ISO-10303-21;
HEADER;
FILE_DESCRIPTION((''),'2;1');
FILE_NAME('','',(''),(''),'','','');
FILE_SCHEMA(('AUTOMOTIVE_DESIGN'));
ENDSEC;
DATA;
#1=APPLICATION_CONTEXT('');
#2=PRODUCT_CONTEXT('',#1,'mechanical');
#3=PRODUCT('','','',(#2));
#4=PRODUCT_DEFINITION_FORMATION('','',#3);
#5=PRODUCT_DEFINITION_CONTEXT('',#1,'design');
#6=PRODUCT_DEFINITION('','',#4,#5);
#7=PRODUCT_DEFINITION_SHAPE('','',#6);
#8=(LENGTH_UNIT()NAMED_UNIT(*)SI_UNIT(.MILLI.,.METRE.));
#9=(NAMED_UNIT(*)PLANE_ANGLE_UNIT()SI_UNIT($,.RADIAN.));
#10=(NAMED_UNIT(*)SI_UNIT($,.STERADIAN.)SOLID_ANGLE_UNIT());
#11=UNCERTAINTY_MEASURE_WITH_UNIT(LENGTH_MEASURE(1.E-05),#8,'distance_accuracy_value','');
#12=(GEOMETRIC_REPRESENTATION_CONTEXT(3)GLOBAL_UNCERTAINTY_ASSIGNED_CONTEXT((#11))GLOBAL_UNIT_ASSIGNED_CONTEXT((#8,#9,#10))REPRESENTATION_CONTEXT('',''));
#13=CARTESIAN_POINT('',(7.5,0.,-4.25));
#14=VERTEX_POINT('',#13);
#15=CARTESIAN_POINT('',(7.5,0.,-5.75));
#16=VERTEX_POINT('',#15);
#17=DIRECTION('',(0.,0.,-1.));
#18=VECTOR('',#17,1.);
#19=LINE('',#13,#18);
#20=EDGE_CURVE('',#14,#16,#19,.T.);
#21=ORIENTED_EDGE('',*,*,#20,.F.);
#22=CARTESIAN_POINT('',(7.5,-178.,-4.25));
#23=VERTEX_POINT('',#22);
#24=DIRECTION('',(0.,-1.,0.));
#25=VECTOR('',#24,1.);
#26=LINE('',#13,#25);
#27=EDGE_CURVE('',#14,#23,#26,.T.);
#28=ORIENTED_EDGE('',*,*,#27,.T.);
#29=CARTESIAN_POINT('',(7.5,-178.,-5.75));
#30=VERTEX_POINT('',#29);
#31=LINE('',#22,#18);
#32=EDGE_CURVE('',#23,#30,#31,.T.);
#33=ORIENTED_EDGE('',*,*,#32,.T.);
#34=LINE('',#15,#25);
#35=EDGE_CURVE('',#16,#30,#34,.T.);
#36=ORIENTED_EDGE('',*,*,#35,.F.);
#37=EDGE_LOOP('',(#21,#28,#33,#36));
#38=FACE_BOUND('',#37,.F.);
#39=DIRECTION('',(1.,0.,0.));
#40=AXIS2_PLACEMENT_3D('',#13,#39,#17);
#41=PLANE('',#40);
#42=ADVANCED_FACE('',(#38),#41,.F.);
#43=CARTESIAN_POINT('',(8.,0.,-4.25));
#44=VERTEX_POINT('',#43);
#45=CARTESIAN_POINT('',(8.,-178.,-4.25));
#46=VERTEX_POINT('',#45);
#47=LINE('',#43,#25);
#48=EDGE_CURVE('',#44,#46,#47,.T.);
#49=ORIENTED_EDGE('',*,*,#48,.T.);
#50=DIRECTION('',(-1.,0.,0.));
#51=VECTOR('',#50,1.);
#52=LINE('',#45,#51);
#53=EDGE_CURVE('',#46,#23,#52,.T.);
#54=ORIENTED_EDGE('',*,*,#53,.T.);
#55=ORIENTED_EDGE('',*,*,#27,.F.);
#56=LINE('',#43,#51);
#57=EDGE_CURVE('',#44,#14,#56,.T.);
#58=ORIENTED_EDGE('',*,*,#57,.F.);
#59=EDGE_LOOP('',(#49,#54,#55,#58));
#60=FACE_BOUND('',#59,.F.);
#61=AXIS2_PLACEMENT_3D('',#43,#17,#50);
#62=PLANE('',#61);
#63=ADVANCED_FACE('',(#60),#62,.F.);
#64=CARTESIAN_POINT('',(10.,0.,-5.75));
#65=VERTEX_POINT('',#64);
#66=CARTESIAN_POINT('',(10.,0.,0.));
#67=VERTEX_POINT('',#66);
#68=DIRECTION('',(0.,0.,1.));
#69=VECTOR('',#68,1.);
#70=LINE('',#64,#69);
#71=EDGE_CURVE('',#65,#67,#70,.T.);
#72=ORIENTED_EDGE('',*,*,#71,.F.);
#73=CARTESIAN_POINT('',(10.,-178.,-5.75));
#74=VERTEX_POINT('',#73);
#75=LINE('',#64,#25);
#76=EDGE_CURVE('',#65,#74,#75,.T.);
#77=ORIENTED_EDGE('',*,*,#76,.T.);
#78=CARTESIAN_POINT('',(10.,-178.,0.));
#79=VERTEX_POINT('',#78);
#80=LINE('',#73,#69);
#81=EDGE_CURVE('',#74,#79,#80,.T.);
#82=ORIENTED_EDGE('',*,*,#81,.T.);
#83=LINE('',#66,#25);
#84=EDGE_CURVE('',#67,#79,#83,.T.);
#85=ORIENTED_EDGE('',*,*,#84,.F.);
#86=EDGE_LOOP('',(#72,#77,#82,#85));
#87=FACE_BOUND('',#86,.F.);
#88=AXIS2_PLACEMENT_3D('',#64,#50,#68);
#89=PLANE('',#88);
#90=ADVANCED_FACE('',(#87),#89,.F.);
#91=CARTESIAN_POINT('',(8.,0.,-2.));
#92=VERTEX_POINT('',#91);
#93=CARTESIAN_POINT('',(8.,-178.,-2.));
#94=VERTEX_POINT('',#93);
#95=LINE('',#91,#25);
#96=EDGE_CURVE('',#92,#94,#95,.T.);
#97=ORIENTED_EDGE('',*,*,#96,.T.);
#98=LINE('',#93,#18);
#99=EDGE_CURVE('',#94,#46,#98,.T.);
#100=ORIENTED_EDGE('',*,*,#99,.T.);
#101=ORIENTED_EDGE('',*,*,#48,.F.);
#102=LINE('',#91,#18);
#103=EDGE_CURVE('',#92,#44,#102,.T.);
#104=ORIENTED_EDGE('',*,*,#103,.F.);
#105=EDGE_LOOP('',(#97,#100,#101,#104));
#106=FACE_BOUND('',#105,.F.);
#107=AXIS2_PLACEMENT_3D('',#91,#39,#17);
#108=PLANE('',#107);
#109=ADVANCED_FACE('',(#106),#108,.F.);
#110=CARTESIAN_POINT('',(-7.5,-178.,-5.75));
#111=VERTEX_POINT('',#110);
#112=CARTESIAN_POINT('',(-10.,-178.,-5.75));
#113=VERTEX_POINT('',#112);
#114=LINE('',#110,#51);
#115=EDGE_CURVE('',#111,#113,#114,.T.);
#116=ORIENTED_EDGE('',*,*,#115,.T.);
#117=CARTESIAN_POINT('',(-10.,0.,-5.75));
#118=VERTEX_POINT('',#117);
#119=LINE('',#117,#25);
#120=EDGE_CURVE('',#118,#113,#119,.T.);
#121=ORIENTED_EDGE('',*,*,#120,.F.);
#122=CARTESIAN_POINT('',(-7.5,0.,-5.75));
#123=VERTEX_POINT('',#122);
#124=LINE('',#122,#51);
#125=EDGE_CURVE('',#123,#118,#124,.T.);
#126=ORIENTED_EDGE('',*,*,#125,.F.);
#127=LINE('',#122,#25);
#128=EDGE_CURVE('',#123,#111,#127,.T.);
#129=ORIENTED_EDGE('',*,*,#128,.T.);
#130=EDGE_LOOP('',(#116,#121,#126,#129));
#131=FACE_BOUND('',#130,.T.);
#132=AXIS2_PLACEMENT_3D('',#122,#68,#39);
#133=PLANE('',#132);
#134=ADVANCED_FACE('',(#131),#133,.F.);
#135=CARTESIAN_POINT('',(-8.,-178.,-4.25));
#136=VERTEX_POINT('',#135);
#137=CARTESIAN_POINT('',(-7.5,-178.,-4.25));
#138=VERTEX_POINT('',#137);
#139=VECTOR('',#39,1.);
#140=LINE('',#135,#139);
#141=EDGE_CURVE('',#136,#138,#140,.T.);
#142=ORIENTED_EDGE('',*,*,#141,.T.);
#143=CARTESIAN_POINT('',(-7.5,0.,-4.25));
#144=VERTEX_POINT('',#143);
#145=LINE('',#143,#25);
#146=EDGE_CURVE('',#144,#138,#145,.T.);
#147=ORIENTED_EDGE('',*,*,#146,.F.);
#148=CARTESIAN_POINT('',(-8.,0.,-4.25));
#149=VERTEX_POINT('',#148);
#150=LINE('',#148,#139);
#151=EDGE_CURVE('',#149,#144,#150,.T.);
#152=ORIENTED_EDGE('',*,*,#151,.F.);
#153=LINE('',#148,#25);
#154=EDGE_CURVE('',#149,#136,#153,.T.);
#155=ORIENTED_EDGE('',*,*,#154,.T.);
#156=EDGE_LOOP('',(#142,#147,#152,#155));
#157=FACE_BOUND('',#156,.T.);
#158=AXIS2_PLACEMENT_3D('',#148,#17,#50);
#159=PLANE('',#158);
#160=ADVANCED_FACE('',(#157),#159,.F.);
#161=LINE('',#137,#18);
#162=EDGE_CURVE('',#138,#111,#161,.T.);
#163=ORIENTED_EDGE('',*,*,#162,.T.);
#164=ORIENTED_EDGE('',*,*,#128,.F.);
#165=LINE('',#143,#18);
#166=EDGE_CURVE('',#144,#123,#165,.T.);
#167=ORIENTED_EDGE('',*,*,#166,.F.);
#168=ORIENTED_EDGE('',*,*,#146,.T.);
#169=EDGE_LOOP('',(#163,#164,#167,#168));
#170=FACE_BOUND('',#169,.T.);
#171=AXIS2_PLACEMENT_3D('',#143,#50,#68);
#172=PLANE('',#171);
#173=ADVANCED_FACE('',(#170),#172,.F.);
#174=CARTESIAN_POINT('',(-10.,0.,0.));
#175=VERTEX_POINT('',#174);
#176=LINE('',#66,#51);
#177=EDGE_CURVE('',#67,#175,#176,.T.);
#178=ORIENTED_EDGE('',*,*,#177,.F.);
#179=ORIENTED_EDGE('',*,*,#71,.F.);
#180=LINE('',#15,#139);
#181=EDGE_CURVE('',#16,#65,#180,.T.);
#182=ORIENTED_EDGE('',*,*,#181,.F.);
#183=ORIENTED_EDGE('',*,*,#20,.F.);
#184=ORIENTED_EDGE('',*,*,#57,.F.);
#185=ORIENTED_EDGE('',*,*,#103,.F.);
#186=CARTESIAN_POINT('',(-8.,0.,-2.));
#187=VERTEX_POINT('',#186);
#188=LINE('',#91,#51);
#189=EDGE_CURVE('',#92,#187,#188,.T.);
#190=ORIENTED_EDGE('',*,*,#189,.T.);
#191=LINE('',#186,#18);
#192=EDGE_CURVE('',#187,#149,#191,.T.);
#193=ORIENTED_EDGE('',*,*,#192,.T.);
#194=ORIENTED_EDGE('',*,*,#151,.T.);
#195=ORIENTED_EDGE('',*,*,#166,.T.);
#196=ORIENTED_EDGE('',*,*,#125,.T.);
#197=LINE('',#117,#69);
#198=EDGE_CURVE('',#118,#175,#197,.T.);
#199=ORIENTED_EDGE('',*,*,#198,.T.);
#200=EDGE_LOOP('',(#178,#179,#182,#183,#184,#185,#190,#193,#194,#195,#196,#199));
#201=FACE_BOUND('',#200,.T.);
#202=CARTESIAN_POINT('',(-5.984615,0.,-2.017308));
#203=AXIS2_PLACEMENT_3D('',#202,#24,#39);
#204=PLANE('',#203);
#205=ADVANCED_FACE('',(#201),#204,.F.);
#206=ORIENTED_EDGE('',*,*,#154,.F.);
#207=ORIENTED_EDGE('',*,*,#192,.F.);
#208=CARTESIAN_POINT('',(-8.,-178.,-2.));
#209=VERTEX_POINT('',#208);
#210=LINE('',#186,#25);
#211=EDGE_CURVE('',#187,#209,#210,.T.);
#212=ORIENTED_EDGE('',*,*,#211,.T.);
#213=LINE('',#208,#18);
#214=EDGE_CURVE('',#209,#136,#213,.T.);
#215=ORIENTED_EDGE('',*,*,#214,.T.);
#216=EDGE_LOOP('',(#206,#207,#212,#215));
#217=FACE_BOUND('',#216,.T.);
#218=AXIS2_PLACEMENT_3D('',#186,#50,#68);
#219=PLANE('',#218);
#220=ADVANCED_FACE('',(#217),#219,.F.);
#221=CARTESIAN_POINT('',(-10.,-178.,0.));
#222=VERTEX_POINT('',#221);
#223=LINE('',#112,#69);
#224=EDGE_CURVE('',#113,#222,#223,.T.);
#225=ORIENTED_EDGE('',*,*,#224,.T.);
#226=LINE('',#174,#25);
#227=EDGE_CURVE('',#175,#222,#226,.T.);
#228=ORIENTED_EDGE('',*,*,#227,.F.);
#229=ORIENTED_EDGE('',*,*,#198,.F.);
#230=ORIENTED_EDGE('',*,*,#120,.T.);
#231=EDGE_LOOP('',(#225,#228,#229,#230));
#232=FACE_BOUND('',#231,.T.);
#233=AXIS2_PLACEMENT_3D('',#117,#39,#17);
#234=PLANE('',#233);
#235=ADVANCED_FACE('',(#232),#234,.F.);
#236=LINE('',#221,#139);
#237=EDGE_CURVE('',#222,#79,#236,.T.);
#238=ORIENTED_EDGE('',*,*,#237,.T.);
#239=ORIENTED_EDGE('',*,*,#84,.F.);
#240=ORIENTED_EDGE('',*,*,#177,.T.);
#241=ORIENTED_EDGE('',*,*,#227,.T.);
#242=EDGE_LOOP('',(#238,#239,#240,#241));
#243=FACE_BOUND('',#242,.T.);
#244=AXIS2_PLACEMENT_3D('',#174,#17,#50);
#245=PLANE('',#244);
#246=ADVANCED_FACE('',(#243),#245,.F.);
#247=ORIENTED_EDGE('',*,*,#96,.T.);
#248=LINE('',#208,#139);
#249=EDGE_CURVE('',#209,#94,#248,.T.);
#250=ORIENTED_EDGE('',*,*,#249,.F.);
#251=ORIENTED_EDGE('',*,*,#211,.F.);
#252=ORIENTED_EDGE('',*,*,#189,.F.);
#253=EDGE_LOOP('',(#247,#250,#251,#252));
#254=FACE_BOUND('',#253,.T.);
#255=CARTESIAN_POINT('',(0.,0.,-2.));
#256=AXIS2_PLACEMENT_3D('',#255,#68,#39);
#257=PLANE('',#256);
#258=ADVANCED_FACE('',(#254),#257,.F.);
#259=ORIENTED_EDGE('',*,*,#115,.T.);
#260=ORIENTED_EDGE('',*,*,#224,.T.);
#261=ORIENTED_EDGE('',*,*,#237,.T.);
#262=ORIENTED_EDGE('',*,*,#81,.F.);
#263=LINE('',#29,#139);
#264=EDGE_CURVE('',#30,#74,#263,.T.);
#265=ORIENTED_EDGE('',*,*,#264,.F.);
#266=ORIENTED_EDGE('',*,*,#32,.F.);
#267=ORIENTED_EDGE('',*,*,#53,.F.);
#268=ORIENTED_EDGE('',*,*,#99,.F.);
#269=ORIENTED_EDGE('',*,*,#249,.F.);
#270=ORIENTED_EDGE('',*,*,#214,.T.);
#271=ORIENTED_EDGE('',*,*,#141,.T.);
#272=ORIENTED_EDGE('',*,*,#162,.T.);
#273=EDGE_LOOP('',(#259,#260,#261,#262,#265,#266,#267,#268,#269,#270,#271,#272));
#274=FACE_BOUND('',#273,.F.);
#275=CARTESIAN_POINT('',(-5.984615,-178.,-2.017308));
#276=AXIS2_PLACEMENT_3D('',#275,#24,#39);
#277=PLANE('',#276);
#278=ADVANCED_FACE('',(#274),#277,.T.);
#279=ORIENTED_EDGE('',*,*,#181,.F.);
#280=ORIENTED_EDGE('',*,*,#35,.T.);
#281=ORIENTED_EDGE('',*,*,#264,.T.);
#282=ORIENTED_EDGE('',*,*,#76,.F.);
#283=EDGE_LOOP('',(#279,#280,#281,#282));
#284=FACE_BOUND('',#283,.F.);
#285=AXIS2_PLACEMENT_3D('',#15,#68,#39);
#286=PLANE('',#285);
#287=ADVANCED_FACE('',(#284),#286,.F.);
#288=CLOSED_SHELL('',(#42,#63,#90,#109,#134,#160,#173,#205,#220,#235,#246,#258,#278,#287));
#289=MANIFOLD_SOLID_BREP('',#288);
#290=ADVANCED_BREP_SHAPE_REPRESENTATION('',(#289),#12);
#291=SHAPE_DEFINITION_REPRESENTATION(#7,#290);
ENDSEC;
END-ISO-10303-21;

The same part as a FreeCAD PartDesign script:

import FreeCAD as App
import Part
import Sketcher

V = App.Vector

doc = App.newDocument("Part")
body = doc.addObject("PartDesign::Body", "Body")

# Sketch on XZ plane
sketch1 = body.newObject("Sketcher::SketchObject", "Sketch")
sketch1.AttachmentSupport = (doc.getObject("XZ_Plane"), [""])
sketch1.MapMode = "FlatFace"
sketch1.addGeometry(Part.LineSegment(V(10, 0, 0), V(0, 0, 0)), False)
sketch1.addGeometry(Part.LineSegment(V(0, 0, 0), V(0, -2, 0)), False)
sketch1.addGeometry(Part.LineSegment(V(0, -2, 0), V(8, -2, 0)), False)
sketch1.addGeometry(Part.LineSegment(V(8, -2, 0), V(8, -4.25, 0)), False)
sketch1.addGeometry(Part.LineSegment(V(8, -4.25, 0), V(7.5, -4.25, 0)), False)
sketch1.addGeometry(Part.LineSegment(V(7.5, -4.25, 0), V(7.5, -5.75, 0)), False)
sketch1.addGeometry(Part.LineSegment(V(7.5, -5.75, 0), V(10, -5.75, 0)), False)
sketch1.addGeometry(Part.LineSegment(V(10, -5.75, 0), V(10, 0, 0)), False)
sketch1.addConstraint(Sketcher.Constraint("Coincident", 0, 2, 1, 1))
sketch1.addConstraint(Sketcher.Constraint("Coincident", 1, 2, 2, 1))
sketch1.addConstraint(Sketcher.Constraint("Coincident", 2, 2, 3, 1))
sketch1.addConstraint(Sketcher.Constraint("Coincident", 3, 2, 4, 1))
sketch1.addConstraint(Sketcher.Constraint("Coincident", 4, 2, 5, 1))
sketch1.addConstraint(Sketcher.Constraint("Coincident", 5, 2, 6, 1))
sketch1.addConstraint(Sketcher.Constraint("Coincident", 6, 2, 7, 1))
sketch1.addConstraint(Sketcher.Constraint("Coincident", 7, 2, 0, 1))
sketch1.addConstraint(Sketcher.Constraint("Horizontal", 0))
sketch1.addConstraint(Sketcher.Constraint("Vertical", 1))
sketch1.addConstraint(Sketcher.Constraint("Horizontal", 2))
sketch1.addConstraint(Sketcher.Constraint("Vertical", 3))
sketch1.addConstraint(Sketcher.Constraint("Horizontal", 4))
sketch1.addConstraint(Sketcher.Constraint("Vertical", 5))
sketch1.addConstraint(Sketcher.Constraint("Horizontal", 6))
sketch1.addConstraint(Sketcher.Constraint("Vertical", 7))
sketch1.addConstraint(Sketcher.Constraint("Coincident", 0, 2, -1, 1))
sketch1.addConstraint(Sketcher.Constraint("DistanceX", 0, 2, 0, 1, 10.0))
sketch1.addConstraint(Sketcher.Constraint("DistanceX", 2, 1, 2, 2, 8.0))
sketch1.addConstraint(Sketcher.Constraint("DistanceY", 1, 2, 1, 1, 2.0))
sketch1.addConstraint(Sketcher.Constraint("DistanceX", 4, 2, 4, 1, 0.5))
sketch1.addConstraint(Sketcher.Constraint("DistanceY", 5, 2, 5, 1, 1.5))
sketch1.addConstraint(Sketcher.Constraint("DistanceY", 3, 2, 3, 1, 2.25))
pad1 = body.newObject("PartDesign::Pad", "Pad")
pad1.Profile = sketch1
pad1.Length = 178
body2 = doc.addObject("PartDesign::Body", "Body001")
doc.recompute()

body2.BaseFeature = body
doc.recompute()

mirroring = doc.addObject("Part::Mirroring", "Mirroring")
mirroring.Source = body
mirroring.Base = V(0, 0, 0)
mirroring.Normal = V(1, 0, 0)
body3 = doc.addObject("PartDesign::Body", "Body002")
body3.BaseFeature = mirroring
boolean = body2.newObject("PartDesign::Boolean", "Boolean")
boolean.Type = "Fuse"
boolean.addObjects([body3])
doc.recompute()
mirroring.Visibility = False

doc.recompute()
